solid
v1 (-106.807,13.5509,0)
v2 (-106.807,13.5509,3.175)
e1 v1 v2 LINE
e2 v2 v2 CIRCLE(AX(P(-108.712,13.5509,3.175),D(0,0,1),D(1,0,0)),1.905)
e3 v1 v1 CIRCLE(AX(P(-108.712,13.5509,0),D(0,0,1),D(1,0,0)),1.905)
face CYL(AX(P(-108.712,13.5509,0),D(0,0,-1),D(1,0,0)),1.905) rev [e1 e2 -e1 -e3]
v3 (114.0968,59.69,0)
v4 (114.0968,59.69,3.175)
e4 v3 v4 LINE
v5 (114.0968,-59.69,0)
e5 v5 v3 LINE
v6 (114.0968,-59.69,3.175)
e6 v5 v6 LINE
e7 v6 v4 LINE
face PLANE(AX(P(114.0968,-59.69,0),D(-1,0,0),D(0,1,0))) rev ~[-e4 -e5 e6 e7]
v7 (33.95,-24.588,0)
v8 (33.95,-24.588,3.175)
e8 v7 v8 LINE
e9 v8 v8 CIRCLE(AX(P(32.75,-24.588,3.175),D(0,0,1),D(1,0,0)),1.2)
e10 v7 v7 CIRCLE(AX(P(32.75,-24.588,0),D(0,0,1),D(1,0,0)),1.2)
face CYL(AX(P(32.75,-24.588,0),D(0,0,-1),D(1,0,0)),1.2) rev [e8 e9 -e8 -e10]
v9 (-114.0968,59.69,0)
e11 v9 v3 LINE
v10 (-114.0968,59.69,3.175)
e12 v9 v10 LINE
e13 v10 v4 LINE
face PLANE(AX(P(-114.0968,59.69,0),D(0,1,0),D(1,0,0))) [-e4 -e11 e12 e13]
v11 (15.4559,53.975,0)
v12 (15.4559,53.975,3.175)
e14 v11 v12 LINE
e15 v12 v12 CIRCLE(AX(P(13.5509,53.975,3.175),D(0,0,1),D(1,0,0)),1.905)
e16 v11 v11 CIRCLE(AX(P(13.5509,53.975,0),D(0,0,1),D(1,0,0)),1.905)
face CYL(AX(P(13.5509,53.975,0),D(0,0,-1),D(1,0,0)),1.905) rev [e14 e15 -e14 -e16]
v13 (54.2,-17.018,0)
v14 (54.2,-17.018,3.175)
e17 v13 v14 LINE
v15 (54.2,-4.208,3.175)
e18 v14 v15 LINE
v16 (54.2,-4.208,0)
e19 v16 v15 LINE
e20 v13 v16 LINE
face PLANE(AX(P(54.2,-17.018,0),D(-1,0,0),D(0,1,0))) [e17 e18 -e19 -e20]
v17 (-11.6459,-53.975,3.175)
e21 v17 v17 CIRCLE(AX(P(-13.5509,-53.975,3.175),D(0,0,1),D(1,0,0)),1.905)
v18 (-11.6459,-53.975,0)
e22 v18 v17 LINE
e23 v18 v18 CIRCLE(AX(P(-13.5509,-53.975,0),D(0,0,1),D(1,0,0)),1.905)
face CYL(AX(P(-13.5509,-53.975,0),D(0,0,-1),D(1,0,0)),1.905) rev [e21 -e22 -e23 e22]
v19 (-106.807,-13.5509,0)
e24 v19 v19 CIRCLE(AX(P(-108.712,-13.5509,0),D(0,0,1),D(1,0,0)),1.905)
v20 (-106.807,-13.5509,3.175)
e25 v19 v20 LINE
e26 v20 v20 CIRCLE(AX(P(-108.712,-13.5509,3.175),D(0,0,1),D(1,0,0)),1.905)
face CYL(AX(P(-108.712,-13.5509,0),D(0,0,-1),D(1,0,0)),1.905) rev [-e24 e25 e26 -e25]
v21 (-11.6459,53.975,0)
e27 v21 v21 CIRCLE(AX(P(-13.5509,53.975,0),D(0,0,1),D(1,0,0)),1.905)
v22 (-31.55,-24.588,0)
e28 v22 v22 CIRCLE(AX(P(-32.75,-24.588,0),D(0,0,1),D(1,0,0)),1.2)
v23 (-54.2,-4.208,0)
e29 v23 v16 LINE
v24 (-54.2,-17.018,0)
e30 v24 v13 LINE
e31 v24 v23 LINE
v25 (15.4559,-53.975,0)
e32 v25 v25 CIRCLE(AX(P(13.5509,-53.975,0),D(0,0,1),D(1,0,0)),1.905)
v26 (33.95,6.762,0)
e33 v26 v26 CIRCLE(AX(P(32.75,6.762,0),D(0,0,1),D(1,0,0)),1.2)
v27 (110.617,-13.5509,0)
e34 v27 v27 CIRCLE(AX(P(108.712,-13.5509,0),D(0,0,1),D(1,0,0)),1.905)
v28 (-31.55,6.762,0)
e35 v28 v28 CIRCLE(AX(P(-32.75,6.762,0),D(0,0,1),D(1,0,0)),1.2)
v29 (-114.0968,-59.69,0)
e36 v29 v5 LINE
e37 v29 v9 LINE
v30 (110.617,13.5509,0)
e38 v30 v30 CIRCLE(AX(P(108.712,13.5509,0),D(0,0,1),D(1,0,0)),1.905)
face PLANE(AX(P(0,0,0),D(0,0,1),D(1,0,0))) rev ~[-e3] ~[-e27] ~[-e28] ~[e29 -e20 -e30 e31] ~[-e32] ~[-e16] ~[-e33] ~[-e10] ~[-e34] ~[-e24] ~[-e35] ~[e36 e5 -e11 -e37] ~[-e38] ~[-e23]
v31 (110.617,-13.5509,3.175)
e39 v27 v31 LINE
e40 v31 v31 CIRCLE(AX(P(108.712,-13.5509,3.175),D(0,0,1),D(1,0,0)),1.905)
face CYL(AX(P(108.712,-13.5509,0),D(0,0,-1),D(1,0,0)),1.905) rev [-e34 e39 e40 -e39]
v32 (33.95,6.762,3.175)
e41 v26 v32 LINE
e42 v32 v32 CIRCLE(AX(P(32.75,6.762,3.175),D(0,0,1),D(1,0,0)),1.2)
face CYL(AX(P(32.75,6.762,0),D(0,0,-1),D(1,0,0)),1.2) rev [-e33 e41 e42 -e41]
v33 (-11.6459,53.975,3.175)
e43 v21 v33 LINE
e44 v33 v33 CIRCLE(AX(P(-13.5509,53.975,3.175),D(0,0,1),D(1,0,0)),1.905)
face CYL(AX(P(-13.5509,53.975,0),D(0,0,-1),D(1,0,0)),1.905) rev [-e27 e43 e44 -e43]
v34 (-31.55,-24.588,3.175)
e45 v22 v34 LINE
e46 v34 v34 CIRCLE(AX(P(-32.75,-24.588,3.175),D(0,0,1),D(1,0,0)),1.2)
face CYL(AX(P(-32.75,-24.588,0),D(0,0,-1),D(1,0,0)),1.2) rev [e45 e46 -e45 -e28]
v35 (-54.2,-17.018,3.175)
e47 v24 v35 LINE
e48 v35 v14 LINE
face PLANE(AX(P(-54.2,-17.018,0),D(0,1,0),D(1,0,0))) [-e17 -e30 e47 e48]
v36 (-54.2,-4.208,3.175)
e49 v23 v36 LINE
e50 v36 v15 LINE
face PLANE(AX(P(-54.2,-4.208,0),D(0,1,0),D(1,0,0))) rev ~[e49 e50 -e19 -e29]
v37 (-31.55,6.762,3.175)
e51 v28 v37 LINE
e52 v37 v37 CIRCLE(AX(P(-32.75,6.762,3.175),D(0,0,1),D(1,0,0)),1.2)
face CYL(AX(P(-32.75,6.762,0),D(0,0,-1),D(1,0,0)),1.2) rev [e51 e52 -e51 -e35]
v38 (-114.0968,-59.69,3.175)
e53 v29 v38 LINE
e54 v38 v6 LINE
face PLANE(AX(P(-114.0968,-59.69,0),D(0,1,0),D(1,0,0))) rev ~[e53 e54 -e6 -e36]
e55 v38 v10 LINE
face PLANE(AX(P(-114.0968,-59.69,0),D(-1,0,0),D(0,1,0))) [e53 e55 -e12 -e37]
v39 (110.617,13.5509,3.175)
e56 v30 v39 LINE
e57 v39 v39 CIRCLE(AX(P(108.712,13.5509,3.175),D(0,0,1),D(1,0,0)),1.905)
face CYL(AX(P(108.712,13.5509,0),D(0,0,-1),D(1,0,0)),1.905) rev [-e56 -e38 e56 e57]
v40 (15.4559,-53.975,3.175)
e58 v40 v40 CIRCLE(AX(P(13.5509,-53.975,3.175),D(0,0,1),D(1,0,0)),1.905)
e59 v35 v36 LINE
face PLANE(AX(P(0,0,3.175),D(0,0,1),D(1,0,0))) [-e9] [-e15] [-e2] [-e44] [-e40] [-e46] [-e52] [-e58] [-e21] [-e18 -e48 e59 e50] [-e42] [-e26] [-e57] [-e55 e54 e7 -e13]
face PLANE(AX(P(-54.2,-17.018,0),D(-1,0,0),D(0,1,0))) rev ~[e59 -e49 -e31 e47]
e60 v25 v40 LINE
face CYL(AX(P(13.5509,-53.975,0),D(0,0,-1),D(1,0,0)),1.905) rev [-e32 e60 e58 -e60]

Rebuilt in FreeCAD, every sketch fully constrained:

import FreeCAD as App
import Part
import Sketcher

V = App.Vector
Q = App.Units.Quantity

doc = App.newDocument("Part")
body = doc.addObject("PartDesign::Body", "Body")

# Sketch on XY plane
sketch1 = body.newObject("Sketcher::SketchObject", "Sketch")
sketch1.AttachmentSupport = (doc.getObject("XY_Plane"), [""])
sketch1.MapMode = "FlatFace"
sketch1.addGeometry([
    Part.LineSegment(V(-114.1, 59.7, 0), V(-114.1, -59.7, 0)),  # 0
    Part.LineSegment(V(-114.1, -59.7, 0), V(114.1, -59.7, 0)),  # 1
    Part.LineSegment(V(114.1, -59.7, 0), V(114.1, 59.7, 0)),  # 2
    Part.LineSegment(V(114.1, 59.7, 0), V(-114.1, 59.7, 0)),  # 3
    Part.Circle(V(-13.6, -54, 0), V(0, 0, 1), 1.9),  # 4
    Part.Circle(V(-108.7, -13.6, 0), V(0, 0, 1), 1.9),  # 5
    Part.Circle(V(-32.8, -24.6, 0), V(0, 0, 1), 1.2),  # 6
    Part.Circle(V(13.6, -54, 0), V(0, 0, 1), 1.9),  # 7
    Part.Circle(V(32.8, -24.6, 0), V(0, 0, 1), 1.2),  # 8
    Part.LineSegment(V(54.2, -17, 0), V(-54.2, -17, 0)),  # 9
    Part.LineSegment(V(-54.2, -17, 0), V(-54.2, -4.2, 0)),  # 10
    Part.LineSegment(V(-54.2, -4.2, 0), V(54.2, -4.2, 0)),  # 11
    Part.LineSegment(V(54.2, -4.2, 0), V(54.2, -17, 0)),  # 12
    Part.Circle(V(108.7, -13.6, 0), V(0, 0, 1), 1.9),  # 13
    Part.Circle(V(-108.7, 13.6, 0), V(0, 0, 1), 1.9),  # 14
    Part.Circle(V(-32.8, 6.8, 0), V(0, 0, 1), 1.2),  # 15
    Part.Circle(V(-13.6, 54, 0), V(0, 0, 1), 1.9),  # 16
    Part.Circle(V(32.8, 6.8, 0), V(0, 0, 1), 1.2),  # 17
    Part.Circle(V(108.7, 13.6, 0), V(0, 0, 1), 1.9),  # 18
    Part.Circle(V(13.6, 54, 0), V(0, 0, 1), 1.9),  # 19
], False)
sketch1.addConstraint([
    Sketcher.Constraint("Coincident", 0, 2, 1, 1),
    Sketcher.Constraint("Coincident", 1, 2, 2, 1),
    Sketcher.Constraint("Coincident", 2, 2, 3, 1),
    Sketcher.Constraint("Coincident", 3, 2, 0, 1),
    Sketcher.Constraint("Coincident", 9, 2, 10, 1),
    Sketcher.Constraint("Coincident", 10, 2, 11, 1),
    Sketcher.Constraint("Coincident", 11, 2, 12, 1),
    Sketcher.Constraint("Coincident", 12, 2, 9, 1),
    Sketcher.Constraint("Vertical", 0),
    Sketcher.Constraint("Horizontal", 1),
    Sketcher.Constraint("Vertical", 2),
    Sketcher.Constraint("Horizontal", 3),
    Sketcher.Constraint("Horizontal", 9),
    Sketcher.Constraint("Vertical", 10),
    Sketcher.Constraint("Horizontal", 11),
    Sketcher.Constraint("Vertical", 12),
    Sketcher.Constraint("Equal", 4, 5),
    Sketcher.Constraint("Equal", 5, 7),
    Sketcher.Constraint("Equal", 6, 8),
    Sketcher.Constraint("Equal", 7, 13),
    Sketcher.Constraint("Equal", 13, 14),
    Sketcher.Constraint("Equal", 8, 15),
    Sketcher.Constraint("Equal", 14, 16),
    Sketcher.Constraint("Equal", 15, 17),
    Sketcher.Constraint("Equal", 16, 18),
    Sketcher.Constraint("Equal", 18, 19),
    Sketcher.Constraint("Symmetric", 13, 3, 14, 3, -1, 1),
    Sketcher.Constraint("Symmetric", 7, 3, 16, 3, -1, 1),
    Sketcher.Constraint("Symmetric", 5, 3, 18, 3, -1, 1),
    Sketcher.Constraint("Symmetric", 4, 3, 19, 3, -1, 1),
    Sketcher.Constraint("Symmetric", 0, 2, 2, 2, -1, 1),
    Sketcher.Constraint("Symmetric", 4, 3, 7, 3, -2),
    Sketcher.Constraint("Symmetric", 6, 3, 8, 3, -2),
    Sketcher.Constraint("Symmetric", 5, 3, 13, 3, -2),
    Sketcher.Constraint("Symmetric", 15, 3, 17, 3, -2),
    Sketcher.Constraint("Vertical", 6, 3, 15, 3),
    Sketcher.Constraint("Diameter", 4, Q("0.15 in")),
    Sketcher.Constraint("DistanceY", 0, 2, 0, 1, Q("4.7 in")),
    Sketcher.Constraint("Diameter", 6, Q("2.4 mm")),
    Sketcher.Constraint("DistanceX", 1, 1, 1, 2, Q("8.984 in")),
    Sketcher.Constraint("DistanceX", 5, 3, -1, 1, Q("4.28 in")),
    Sketcher.Constraint("DistanceY", 9, 2, -1, 1, Q("0.67 in")),
    Sketcher.Constraint("DistanceY", 4, 3, 16, 3, Q("4.25 in")),
    Sketcher.Constraint("DistanceX", 4, 3, 7, 3, Q("1.067 in")),
    Sketcher.Constraint("DistanceY", 5, 3, 14, 3, Q("1.067 in")),
    Sketcher.Constraint("DistanceX", 9, 2, 9, 1, Q("108.4 mm")),
    Sketcher.Constraint("DistanceY", 10, 1, 10, 2, Q("12.81 mm")),
    Sketcher.Constraint("DistanceX", 6, 3, -1, 1, Q("32.75 mm")),
    Sketcher.Constraint("DistanceY", 6, 3, -1, 1, Q("24.588 mm")),
    Sketcher.Constraint("DistanceY", -1, 1, 15, 3, Q("6.762 mm")),
    Sketcher.Constraint("DistanceX", 9, 2, -1, 1, Q("54.2 mm")),
])
pad1 = body.newObject("PartDesign::Pad", "Pad")
pad1.Profile = sketch1
pad1.Length = Q("0.125 in")

doc.recompute()
